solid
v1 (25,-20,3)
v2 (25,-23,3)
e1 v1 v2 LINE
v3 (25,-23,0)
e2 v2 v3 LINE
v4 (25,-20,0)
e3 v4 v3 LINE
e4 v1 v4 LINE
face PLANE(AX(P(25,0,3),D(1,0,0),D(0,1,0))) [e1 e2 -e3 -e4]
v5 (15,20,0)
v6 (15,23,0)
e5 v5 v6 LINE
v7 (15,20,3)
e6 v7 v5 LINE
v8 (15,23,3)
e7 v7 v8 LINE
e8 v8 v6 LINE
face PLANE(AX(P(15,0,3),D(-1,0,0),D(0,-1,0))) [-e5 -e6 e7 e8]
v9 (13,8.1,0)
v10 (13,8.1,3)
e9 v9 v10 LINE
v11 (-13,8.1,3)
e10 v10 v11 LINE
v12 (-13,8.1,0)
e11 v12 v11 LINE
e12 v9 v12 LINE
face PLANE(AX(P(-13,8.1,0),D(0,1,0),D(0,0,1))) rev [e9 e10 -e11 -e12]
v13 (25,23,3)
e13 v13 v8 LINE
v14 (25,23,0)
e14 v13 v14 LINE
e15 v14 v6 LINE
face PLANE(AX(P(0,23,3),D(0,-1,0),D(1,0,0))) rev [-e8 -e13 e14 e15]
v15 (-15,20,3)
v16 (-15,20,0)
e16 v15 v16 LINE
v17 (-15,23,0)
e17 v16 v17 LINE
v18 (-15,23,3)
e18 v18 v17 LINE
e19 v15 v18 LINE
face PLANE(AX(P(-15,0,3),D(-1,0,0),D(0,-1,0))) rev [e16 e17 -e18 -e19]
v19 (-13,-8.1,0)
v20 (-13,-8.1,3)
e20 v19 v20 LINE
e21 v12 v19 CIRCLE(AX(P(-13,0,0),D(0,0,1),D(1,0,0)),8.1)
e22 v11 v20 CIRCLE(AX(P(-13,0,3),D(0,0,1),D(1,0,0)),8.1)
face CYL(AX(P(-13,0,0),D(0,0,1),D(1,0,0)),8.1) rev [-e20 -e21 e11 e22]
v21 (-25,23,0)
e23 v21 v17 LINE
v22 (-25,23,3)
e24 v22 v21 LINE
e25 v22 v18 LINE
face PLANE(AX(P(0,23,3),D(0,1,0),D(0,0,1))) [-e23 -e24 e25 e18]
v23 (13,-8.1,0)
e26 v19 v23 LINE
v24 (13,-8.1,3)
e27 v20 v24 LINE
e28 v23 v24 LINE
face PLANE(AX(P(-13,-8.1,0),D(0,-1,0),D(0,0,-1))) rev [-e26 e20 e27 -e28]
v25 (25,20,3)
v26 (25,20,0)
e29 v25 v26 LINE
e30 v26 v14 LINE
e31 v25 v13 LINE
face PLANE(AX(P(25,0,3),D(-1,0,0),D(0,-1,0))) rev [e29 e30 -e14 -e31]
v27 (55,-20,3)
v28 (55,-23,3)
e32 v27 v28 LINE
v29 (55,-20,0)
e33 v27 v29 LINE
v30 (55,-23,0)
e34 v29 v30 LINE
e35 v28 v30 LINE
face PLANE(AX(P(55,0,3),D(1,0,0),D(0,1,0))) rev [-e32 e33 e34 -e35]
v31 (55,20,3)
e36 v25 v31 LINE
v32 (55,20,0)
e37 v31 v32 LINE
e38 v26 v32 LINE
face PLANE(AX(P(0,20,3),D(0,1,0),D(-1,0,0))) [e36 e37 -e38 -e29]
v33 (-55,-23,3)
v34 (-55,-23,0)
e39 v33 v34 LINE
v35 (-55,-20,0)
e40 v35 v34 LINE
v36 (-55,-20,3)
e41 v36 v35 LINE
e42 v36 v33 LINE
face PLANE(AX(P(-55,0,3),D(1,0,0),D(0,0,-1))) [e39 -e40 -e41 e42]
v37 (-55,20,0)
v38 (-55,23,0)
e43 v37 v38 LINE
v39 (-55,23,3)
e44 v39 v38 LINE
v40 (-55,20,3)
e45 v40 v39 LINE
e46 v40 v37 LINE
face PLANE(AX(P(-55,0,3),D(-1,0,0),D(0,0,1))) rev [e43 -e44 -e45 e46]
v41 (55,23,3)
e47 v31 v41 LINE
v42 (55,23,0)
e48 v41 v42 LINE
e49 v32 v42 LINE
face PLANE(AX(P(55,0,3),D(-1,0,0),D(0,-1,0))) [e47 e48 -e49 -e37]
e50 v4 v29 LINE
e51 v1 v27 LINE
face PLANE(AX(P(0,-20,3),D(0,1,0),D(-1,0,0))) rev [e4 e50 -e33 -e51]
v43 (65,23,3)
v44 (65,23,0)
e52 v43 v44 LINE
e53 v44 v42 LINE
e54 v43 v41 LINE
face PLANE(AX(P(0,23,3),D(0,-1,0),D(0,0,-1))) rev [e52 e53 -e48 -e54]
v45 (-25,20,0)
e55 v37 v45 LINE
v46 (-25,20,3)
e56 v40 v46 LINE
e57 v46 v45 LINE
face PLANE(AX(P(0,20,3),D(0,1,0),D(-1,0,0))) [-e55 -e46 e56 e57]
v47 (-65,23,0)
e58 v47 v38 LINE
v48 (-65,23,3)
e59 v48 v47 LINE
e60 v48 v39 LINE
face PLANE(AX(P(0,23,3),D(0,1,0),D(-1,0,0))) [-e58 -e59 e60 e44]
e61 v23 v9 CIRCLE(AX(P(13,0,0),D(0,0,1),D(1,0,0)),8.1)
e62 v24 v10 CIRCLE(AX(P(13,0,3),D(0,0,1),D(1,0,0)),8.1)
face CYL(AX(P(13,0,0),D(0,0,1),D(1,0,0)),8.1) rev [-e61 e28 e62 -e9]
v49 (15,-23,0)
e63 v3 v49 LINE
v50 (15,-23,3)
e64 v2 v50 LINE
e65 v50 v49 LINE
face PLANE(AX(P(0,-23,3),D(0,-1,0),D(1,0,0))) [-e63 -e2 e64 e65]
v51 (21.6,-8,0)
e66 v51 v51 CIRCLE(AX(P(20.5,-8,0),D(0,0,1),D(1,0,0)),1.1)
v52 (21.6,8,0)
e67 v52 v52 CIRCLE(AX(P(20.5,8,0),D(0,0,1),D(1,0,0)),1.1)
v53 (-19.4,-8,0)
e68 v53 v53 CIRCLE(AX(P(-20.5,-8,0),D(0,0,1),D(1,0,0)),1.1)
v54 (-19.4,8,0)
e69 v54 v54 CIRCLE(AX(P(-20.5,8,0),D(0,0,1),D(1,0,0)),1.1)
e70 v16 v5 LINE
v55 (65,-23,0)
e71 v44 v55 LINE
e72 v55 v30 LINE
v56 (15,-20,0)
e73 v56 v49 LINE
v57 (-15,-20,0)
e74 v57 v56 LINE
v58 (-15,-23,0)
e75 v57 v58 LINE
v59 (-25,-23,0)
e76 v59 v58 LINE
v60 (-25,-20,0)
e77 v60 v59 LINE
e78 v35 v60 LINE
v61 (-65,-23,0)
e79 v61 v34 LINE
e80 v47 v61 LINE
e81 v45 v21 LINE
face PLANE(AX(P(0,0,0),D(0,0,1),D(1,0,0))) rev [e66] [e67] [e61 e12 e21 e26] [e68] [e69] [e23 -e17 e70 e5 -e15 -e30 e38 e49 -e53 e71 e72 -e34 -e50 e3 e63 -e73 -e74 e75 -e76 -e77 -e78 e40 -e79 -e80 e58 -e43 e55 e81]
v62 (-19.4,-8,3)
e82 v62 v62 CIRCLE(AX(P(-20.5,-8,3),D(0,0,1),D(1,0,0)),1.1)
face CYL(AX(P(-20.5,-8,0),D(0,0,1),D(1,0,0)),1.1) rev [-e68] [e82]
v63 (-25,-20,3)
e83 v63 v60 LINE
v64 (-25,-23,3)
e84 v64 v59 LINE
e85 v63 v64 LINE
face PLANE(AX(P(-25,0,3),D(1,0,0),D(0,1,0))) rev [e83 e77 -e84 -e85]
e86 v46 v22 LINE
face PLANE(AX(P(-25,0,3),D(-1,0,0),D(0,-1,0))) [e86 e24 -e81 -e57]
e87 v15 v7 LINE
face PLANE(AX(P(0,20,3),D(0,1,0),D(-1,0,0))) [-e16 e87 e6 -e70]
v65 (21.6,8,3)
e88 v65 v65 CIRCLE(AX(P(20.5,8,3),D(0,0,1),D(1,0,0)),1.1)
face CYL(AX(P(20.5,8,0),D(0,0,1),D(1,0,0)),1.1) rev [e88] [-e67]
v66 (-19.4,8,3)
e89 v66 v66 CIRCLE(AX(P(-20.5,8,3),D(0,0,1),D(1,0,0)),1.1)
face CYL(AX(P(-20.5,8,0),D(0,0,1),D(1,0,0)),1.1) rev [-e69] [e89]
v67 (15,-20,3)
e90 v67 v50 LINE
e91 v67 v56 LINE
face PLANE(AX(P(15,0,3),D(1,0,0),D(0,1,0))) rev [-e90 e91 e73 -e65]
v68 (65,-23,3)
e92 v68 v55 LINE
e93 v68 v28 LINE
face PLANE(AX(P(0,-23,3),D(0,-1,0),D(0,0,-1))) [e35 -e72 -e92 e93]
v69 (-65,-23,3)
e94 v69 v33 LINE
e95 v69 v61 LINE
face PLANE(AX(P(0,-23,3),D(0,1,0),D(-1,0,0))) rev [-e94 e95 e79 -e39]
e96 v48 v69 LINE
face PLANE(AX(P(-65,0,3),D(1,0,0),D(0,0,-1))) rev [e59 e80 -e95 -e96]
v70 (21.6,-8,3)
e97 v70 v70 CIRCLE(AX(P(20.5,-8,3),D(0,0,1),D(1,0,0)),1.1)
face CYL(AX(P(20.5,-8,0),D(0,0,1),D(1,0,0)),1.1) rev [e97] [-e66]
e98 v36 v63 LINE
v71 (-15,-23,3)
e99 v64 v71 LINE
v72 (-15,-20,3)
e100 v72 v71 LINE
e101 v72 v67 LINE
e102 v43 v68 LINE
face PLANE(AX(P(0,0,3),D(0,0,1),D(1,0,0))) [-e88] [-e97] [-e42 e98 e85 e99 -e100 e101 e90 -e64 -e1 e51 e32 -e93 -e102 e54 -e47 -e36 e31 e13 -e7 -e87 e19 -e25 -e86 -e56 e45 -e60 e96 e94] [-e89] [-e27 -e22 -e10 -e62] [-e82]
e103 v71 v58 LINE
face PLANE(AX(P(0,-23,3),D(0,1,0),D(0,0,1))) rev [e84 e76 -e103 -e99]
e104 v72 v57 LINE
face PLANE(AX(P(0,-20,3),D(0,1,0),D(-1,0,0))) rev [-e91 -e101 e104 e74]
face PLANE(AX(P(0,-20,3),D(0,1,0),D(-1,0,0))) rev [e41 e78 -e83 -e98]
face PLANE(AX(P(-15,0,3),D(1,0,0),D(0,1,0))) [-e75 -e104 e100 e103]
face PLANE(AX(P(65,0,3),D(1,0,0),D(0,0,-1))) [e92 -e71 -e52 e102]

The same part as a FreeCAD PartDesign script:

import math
import FreeCAD as App
import Part
import Sketcher
from FreeCAD import Vector
Q = App.Units.Quantity


def add_polygon(sketch, points):
    """Adds a closed chain of lines whose ends are joined by coincident constraints."""
    first, n = sketch.GeometryCount, len(points)
    for a, b in zip(points, points[1:] + points[:1]):
        sketch.addGeometry(Part.LineSegment(App.Vector(*a, 0), App.Vector(*b, 0)), False)
    for i in range(n):
        sketch.addConstraint(Sketcher.Constraint("Coincident", first + i, 2, first + (i + 1) % n, 1))

doc = App.newDocument("Part")
body = doc.addObject("PartDesign::Body", "Body")

# Sketch on XY plane
sketch1 = body.newObject("Sketcher::SketchObject", "Sketch")
sketch1.AttachmentSupport = (doc.getObject("XY_Plane"), [""])
sketch1.MapMode = "FlatFace"
add_polygon(sketch1, [(-55, -20), (-25, -20), (-25, -23), (-15, -23), (-15, -20), (15, -20), (15, -23), (25, -23), (25, -20), (55, -20), (55, -23), (65, -23), (65, 23), (55, 23), (55, 20), (25, 20), (25, 23), (15, 23), (15, 20), (-15, 20), (-15, 23), (-25, 23), (-25, 20), (-55, 20), (-55, 23), (-65, 23), (-65, -23), (-55, -23)])  # lines 0-27
sketch1.addConstraint([
    Sketcher.Constraint("Horizontal", 0),
    Sketcher.Constraint("Vertical", 1),
    Sketcher.Constraint("Horizontal", 2),
    Sketcher.Constraint("Vertical", 3),
    Sketcher.Constraint("Horizontal", 4),
    Sketcher.Constraint("Vertical", 5),
    Sketcher.Constraint("Horizontal", 6),
    Sketcher.Constraint("Vertical", 7),
    Sketcher.Constraint("Horizontal", 8),
    Sketcher.Constraint("Vertical", 9),
    Sketcher.Constraint("Horizontal", 10),
    Sketcher.Constraint("Vertical", 11),
    Sketcher.Constraint("Horizontal", 12),
    Sketcher.Constraint("Vertical", 13),
    Sketcher.Constraint("Horizontal", 14),
    Sketcher.Constraint("Vertical", 15),
    Sketcher.Constraint("Horizontal", 16),
    Sketcher.Constraint("Vertical", 17),
    Sketcher.Constraint("Horizontal", 18),
    Sketcher.Constraint("Vertical", 19),
    Sketcher.Constraint("Horizontal", 20),
    Sketcher.Constraint("Vertical", 21),
    Sketcher.Constraint("Horizontal", 22),
    Sketcher.Constraint("Vertical", 23),
    Sketcher.Constraint("Horizontal", 24),
    Sketcher.Constraint("Vertical", 25),
    Sketcher.Constraint("Horizontal", 26),
    Sketcher.Constraint("Vertical", 27),
    Sketcher.Constraint("Symmetric", 0, 2, 14, 2, -1, 1),
    Sketcher.Constraint("Symmetric", 2, 2, 16, 2, -1, 1),
    Sketcher.Constraint("Symmetric", 4, 2, 18, 2, -1, 1),
    Sketcher.Constraint("Symmetric", 6, 2, 20, 2, -1, 1),
    Sketcher.Constraint("Symmetric", 8, 2, 22, 2, -1, 1),
    Sketcher.Constraint("Symmetric", 10, 2, 24, 2, -1, 1),
    Sketcher.Constraint("Symmetric", 12, 2, 26, 2, -1, 1),
    Sketcher.Constraint("Symmetric", 2, 2, 5, 2, -2),
    Sketcher.Constraint("Symmetric", 0, 2, 7, 2, -2),
    Sketcher.Constraint("Symmetric", 12, 2, 23, 2, -2),
    Sketcher.Constraint("Horizontal", 0, 2, 3, 2),
    Sketcher.Constraint("Horizontal", 6, 2, 9, 2),
    Sketcher.Constraint("Equal", 0, 4),
    Sketcher.Constraint("Equal", 6, 10),
    Sketcher.Constraint("DistanceX", 0, 1, 0, 2, Q("30 mm")),
    Sketcher.Constraint("DistanceX", 2, 1, 2, 2, Q("10 mm")),
    Sketcher.Constraint("DistanceY", 1, 2, 1, 1, Q("3 mm")),
    Sketcher.Constraint("DistanceY", 11, 1, 11, 2, Q("46 mm")),
])
pad1 = body.newObject("PartDesign::Pad", "Pad")
pad1.Profile = sketch1
pad1.Length = 3

# Sketch on XY plane
sketch2 = body.newObject("Sketcher::SketchObject", "Sketch001")
sketch2.AttachmentSupport = (doc.getObject("XY_Plane"), [""])
sketch2.MapMode = "FlatFace"
sketch2.AttachmentOffset = App.Placement(Vector(0, 0, 3), App.Rotation())
sketch2.addGeometry([
    Part.Circle(Vector(-20.5, 8, 0), Vector(0, 0, 1), 1.1),  # 0
    Part.Circle(Vector(-20.5, -8, 0), Vector(0, 0, 1), 1.1),  # 1
    Part.Circle(Vector(20.5, 8, 0), Vector(0, 0, 1), 1.1),  # 2
    Part.Circle(Vector(20.5, -8, 0), Vector(0, 0, 1), 1.1),  # 3
    Part.LineSegment(Vector(13, 8.1, 0), Vector(-13, 8.1, 0)),  # 4
    Part.ArcOfCircle(Part.Circle(Vector(-13, 0, 0), Vector(0, 0, 1), 8.1), math.radians(90), math.radians(270)),  # 5
    Part.LineSegment(Vector(-13, -8.1, 0), Vector(13, -8.1, 0)),  # 6
    Part.ArcOfCircle(Part.Circle(Vector(13, 0, 0), Vector(0, 0, 1), 8.1), math.radians(-90), math.radians(90)),  # 7
], False)
sketch2.addConstraint([
    Sketcher.Constraint("Tangent", 4, 2, 5, 1),
    Sketcher.Constraint("Tangent", 5, 2, 6, 1),
    Sketcher.Constraint("Tangent", 6, 2, 7, 1),
    Sketcher.Constraint("Tangent", 7, 2, 4, 1),
    Sketcher.Constraint("Horizontal", 4),
    Sketcher.Constraint("Horizontal", 6),
    Sketcher.Constraint("Equal", 0, 1),
    Sketcher.Constraint("Equal", 1, 2),
    Sketcher.Constraint("Equal", 2, 3),
    Sketcher.Constraint("Symmetric", 1, 3, 2, 3, -1, 1),
    Sketcher.Constraint("Symmetric", 0, 3, 3, 3, -1, 1),
    Sketcher.Constraint("Symmetric", 5, 3, 7, 3, -1, 1),
    Sketcher.Constraint("Symmetric", 0, 3, 2, 3, -2),
    Sketcher.Constraint("Diameter", 0, Q("2.2 mm")),
    Sketcher.Constraint("Radius", 5, Q("8.1 mm")),
    Sketcher.Constraint("DistanceX", 4, 2, 4, 1, Q("26 mm")),
    Sketcher.Constraint("DistanceY", -1, 1, 0, 3, Q("8 mm")),
    Sketcher.Constraint("DistanceX", 0, 3, 2, 3, Q("41 mm")),
])
pocket1 = body.newObject("PartDesign::Pocket", "Pocket")
pocket1.Profile = sketch2
pocket1.Type = "ThroughAll"

doc.recompute()
